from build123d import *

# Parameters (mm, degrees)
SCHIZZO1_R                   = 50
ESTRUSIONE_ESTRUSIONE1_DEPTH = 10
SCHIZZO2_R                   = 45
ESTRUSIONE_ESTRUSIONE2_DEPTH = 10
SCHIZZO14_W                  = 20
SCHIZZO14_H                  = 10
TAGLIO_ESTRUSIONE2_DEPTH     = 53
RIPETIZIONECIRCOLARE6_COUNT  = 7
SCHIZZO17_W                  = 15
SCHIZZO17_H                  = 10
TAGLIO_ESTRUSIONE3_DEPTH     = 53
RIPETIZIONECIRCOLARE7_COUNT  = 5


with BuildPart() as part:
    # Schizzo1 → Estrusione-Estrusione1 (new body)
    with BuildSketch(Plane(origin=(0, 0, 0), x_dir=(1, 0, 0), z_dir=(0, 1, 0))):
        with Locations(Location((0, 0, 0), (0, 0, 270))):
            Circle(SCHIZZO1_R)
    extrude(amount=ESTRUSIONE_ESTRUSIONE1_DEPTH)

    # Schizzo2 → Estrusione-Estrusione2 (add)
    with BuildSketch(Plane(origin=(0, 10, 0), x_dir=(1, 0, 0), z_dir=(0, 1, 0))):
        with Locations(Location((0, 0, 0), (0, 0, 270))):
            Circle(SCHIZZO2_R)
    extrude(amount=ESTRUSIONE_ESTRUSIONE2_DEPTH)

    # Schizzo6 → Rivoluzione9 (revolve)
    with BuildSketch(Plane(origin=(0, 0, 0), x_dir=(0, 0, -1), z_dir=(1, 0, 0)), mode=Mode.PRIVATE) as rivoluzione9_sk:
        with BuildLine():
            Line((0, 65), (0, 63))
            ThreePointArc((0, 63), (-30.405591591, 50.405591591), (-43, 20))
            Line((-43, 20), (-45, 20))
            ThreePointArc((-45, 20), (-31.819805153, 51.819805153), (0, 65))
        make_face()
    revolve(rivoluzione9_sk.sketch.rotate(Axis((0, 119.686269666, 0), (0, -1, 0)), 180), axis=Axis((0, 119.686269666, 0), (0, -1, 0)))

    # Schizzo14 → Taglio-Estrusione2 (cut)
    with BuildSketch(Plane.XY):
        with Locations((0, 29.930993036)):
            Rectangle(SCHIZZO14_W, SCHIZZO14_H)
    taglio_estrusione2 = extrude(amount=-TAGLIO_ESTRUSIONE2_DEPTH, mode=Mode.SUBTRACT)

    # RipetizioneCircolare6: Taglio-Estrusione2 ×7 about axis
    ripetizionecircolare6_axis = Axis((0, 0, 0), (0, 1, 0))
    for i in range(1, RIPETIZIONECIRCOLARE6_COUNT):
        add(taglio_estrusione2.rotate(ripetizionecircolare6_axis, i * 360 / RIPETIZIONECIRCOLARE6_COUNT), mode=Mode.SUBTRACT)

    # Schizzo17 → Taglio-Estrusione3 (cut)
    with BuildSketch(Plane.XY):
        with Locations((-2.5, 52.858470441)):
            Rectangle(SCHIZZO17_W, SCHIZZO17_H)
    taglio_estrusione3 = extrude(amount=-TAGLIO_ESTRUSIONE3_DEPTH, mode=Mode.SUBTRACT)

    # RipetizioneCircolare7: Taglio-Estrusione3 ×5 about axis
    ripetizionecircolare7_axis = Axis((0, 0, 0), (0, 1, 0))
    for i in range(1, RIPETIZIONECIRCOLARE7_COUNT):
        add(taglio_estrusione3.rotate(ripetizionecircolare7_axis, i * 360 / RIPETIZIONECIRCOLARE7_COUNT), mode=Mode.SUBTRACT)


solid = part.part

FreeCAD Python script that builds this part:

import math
import FreeCAD as App
import Part
import Sketcher


def add_polygon(sketch, points):
    """Adds a closed chain of lines whose ends are joined by coincident constraints."""
    first, n = sketch.GeometryCount, len(points)
    for a, b in zip(points, points[1:] + points[:1]):
        sketch.addGeometry(Part.LineSegment(App.Vector(*a, 0), App.Vector(*b, 0)), False)
    for i in range(n):
        sketch.addConstraint(Sketcher.Constraint("Coincident", first + i, 2, first + (i + 1) % n, 1))

doc = App.newDocument("Part")
body = doc.addObject("PartDesign::Body", "Body")

sketch1 = body.newObject("Sketcher::SketchObject", "Sketch")
sketch1.AttachmentSupport = (doc.getObject("XZ_Plane"), [""])
sketch1.MapMode = "FlatFace"
sketch1.addGeometry(Part.Circle(App.Vector(0, 0, 0), App.Vector(0, 0, 1), 50), False)
sketch1.addConstraint([
    Sketcher.Constraint("Coincident", 0, 3, -1, 1),
    Sketcher.Constraint("Diameter", 0, 100.0),
])
pad1 = body.newObject("PartDesign::Pad", "Pad")
pad1.Profile = sketch1
pad1.Length = 10
pad1.Reversed = True

sketch2 = body.newObject("Sketcher::SketchObject", "Sketch001")
sketch2.AttachmentSupport = (doc.getObject("XZ_Plane"), [""])
sketch2.MapMode = "FlatFace"
sketch2.AttachmentOffset = App.Placement(App.Vector(0, 0, -10), App.Rotation())
sketch2.addGeometry(Part.Circle(App.Vector(0, 0, 0), App.Vector(0, 0, 1), 45), False)
sketch2.addConstraint([
    Sketcher.Constraint("Coincident", 0, 3, -1, 1),
    Sketcher.Constraint("Diameter", 0, 90.0),
])
pad2 = body.newObject("PartDesign::Pad", "Pad001")
pad2.Profile = sketch2
pad2.Length = 10
pad2.Reversed = True

sketch3 = body.newObject("Sketcher::SketchObject", "Sketch002")
sketch3.AttachmentSupport = (doc.getObject("YZ_Plane"), [""])
sketch3.MapMode = "FlatFace"
sketch3.addGeometry([
    Part.LineSegment(App.Vector(63, 0, 0), App.Vector(65, 0, 0)),
    Part.ArcOfCircle(Part.Circle(App.Vector(20, 0, 0), App.Vector(0, 0, 1), 45), math.radians(0), math.radians(90)),
    Part.LineSegment(App.Vector(20, 45, 0), App.Vector(20, 43, 0)),
    Part.ArcOfCircle(Part.Circle(App.Vector(20, 0, 0), App.Vector(0, 0, 1), 43), math.radians(0), math.radians(90)),
], False)
sketch3.addConstraint([
    Sketcher.Constraint("Coincident", 0, 2, 1, 1),
    Sketcher.Constraint("Coincident", 1, 2, 2, 1),
    Sketcher.Constraint("Coincident", 2, 2, 3, 2),
    Sketcher.Constraint("Coincident", 3, 1, 0, 1),
    Sketcher.Constraint("Horizontal", 0),
    Sketcher.Constraint("Vertical", 2),
    Sketcher.Constraint("Coincident", 3, 3, 1, 3),
    Sketcher.Constraint("PointOnObject", 1, 3, -1),
    Sketcher.Constraint("PointOnObject", 0, 2, -1),
    Sketcher.Constraint("Vertical", 3, 3, 1, 2),
    Sketcher.Constraint("Radius", 1, 45.0),
    Sketcher.Constraint("Radius", 3, 43.0),
    Sketcher.Constraint("DistanceX", -1, 1, 1, 3, 20.0),
])
revolution = body.newObject("PartDesign::Revolution", "Revolution")
revolution.Profile = sketch3
revolution.ReferenceAxis = (sketch3, ["H_Axis"])
revolution.Angle = 360

sketch4 = body.newObject("Sketcher::SketchObject", "Sketch003")
sketch4.AttachmentSupport = (doc.getObject("XY_Plane"), [""])
sketch4.MapMode = "FlatFace"
add_polygon(sketch4, [(-10, 35), (-10, 25), (10, 25), (10, 35)])
sketch4.addConstraint([
    Sketcher.Constraint("Vertical", 0),
    Sketcher.Constraint("Horizontal", 1),
    Sketcher.Constraint("Vertical", 2),
    Sketcher.Constraint("Horizontal", 3),
    Sketcher.Constraint("DistanceX", 1, 1, 1, 2, 20.0),
    Sketcher.Constraint("DistanceY", 0, 2, 0, 1, 10.0),
    Sketcher.Constraint("DistanceX", 0, 2, -1, 1, 10.0),
    Sketcher.Constraint("DistanceY", -1, 1, 0, 2, 24.930993),
])
pocket1 = body.newObject("PartDesign::Pocket", "Pocket")
pocket1.Profile = sketch4
pocket1.Length = 53
doc.recompute()

polarpattern = body.newObject("PartDesign::PolarPattern", "PolarPattern")
polarpattern.Originals = [pocket1]
polarpattern.Axis = (doc.getObject("Y_Axis"), [""])
polarpattern.Angle = 360
polarpattern.Occurrences = 7
body.Tip = polarpattern

sketch5 = body.newObject("Sketcher::SketchObject", "Sketch004")
sketch5.AttachmentSupport = (doc.getObject("XY_Plane"), [""])
sketch5.MapMode = "FlatFace"
add_polygon(sketch5, [(-10, 58), (-10, 48), (5, 48), (5, 58)])
sketch5.addConstraint([
    Sketcher.Constraint("Vertical", 0),
    Sketcher.Constraint("Horizontal", 1),
    Sketcher.Constraint("Vertical", 2),
    Sketcher.Constraint("Horizontal", 3),
    Sketcher.Constraint("DistanceX", 1, 1, 1, 2, 15.0),
    Sketcher.Constraint("DistanceY", 0, 2, 0, 1, 10.0),
    Sketcher.Constraint("DistanceX", 0, 2, -1, 1, 10.0),
    Sketcher.Constraint("DistanceY", -1, 1, 0, 2, 47.85847),
])
pocket2 = body.newObject("PartDesign::Pocket", "Pocket001")
pocket2.Profile = sketch5
pocket2.Length = 53
doc.recompute()

polarpattern2 = body.newObject("PartDesign::PolarPattern", "PolarPattern001")
polarpattern2.Originals = [pocket2]
polarpattern2.Axis = (doc.getObject("Y_Axis"), [""])
polarpattern2.Angle = 360
polarpattern2.Occurrences = 5
body.Tip = polarpattern2

doc.recompute()
